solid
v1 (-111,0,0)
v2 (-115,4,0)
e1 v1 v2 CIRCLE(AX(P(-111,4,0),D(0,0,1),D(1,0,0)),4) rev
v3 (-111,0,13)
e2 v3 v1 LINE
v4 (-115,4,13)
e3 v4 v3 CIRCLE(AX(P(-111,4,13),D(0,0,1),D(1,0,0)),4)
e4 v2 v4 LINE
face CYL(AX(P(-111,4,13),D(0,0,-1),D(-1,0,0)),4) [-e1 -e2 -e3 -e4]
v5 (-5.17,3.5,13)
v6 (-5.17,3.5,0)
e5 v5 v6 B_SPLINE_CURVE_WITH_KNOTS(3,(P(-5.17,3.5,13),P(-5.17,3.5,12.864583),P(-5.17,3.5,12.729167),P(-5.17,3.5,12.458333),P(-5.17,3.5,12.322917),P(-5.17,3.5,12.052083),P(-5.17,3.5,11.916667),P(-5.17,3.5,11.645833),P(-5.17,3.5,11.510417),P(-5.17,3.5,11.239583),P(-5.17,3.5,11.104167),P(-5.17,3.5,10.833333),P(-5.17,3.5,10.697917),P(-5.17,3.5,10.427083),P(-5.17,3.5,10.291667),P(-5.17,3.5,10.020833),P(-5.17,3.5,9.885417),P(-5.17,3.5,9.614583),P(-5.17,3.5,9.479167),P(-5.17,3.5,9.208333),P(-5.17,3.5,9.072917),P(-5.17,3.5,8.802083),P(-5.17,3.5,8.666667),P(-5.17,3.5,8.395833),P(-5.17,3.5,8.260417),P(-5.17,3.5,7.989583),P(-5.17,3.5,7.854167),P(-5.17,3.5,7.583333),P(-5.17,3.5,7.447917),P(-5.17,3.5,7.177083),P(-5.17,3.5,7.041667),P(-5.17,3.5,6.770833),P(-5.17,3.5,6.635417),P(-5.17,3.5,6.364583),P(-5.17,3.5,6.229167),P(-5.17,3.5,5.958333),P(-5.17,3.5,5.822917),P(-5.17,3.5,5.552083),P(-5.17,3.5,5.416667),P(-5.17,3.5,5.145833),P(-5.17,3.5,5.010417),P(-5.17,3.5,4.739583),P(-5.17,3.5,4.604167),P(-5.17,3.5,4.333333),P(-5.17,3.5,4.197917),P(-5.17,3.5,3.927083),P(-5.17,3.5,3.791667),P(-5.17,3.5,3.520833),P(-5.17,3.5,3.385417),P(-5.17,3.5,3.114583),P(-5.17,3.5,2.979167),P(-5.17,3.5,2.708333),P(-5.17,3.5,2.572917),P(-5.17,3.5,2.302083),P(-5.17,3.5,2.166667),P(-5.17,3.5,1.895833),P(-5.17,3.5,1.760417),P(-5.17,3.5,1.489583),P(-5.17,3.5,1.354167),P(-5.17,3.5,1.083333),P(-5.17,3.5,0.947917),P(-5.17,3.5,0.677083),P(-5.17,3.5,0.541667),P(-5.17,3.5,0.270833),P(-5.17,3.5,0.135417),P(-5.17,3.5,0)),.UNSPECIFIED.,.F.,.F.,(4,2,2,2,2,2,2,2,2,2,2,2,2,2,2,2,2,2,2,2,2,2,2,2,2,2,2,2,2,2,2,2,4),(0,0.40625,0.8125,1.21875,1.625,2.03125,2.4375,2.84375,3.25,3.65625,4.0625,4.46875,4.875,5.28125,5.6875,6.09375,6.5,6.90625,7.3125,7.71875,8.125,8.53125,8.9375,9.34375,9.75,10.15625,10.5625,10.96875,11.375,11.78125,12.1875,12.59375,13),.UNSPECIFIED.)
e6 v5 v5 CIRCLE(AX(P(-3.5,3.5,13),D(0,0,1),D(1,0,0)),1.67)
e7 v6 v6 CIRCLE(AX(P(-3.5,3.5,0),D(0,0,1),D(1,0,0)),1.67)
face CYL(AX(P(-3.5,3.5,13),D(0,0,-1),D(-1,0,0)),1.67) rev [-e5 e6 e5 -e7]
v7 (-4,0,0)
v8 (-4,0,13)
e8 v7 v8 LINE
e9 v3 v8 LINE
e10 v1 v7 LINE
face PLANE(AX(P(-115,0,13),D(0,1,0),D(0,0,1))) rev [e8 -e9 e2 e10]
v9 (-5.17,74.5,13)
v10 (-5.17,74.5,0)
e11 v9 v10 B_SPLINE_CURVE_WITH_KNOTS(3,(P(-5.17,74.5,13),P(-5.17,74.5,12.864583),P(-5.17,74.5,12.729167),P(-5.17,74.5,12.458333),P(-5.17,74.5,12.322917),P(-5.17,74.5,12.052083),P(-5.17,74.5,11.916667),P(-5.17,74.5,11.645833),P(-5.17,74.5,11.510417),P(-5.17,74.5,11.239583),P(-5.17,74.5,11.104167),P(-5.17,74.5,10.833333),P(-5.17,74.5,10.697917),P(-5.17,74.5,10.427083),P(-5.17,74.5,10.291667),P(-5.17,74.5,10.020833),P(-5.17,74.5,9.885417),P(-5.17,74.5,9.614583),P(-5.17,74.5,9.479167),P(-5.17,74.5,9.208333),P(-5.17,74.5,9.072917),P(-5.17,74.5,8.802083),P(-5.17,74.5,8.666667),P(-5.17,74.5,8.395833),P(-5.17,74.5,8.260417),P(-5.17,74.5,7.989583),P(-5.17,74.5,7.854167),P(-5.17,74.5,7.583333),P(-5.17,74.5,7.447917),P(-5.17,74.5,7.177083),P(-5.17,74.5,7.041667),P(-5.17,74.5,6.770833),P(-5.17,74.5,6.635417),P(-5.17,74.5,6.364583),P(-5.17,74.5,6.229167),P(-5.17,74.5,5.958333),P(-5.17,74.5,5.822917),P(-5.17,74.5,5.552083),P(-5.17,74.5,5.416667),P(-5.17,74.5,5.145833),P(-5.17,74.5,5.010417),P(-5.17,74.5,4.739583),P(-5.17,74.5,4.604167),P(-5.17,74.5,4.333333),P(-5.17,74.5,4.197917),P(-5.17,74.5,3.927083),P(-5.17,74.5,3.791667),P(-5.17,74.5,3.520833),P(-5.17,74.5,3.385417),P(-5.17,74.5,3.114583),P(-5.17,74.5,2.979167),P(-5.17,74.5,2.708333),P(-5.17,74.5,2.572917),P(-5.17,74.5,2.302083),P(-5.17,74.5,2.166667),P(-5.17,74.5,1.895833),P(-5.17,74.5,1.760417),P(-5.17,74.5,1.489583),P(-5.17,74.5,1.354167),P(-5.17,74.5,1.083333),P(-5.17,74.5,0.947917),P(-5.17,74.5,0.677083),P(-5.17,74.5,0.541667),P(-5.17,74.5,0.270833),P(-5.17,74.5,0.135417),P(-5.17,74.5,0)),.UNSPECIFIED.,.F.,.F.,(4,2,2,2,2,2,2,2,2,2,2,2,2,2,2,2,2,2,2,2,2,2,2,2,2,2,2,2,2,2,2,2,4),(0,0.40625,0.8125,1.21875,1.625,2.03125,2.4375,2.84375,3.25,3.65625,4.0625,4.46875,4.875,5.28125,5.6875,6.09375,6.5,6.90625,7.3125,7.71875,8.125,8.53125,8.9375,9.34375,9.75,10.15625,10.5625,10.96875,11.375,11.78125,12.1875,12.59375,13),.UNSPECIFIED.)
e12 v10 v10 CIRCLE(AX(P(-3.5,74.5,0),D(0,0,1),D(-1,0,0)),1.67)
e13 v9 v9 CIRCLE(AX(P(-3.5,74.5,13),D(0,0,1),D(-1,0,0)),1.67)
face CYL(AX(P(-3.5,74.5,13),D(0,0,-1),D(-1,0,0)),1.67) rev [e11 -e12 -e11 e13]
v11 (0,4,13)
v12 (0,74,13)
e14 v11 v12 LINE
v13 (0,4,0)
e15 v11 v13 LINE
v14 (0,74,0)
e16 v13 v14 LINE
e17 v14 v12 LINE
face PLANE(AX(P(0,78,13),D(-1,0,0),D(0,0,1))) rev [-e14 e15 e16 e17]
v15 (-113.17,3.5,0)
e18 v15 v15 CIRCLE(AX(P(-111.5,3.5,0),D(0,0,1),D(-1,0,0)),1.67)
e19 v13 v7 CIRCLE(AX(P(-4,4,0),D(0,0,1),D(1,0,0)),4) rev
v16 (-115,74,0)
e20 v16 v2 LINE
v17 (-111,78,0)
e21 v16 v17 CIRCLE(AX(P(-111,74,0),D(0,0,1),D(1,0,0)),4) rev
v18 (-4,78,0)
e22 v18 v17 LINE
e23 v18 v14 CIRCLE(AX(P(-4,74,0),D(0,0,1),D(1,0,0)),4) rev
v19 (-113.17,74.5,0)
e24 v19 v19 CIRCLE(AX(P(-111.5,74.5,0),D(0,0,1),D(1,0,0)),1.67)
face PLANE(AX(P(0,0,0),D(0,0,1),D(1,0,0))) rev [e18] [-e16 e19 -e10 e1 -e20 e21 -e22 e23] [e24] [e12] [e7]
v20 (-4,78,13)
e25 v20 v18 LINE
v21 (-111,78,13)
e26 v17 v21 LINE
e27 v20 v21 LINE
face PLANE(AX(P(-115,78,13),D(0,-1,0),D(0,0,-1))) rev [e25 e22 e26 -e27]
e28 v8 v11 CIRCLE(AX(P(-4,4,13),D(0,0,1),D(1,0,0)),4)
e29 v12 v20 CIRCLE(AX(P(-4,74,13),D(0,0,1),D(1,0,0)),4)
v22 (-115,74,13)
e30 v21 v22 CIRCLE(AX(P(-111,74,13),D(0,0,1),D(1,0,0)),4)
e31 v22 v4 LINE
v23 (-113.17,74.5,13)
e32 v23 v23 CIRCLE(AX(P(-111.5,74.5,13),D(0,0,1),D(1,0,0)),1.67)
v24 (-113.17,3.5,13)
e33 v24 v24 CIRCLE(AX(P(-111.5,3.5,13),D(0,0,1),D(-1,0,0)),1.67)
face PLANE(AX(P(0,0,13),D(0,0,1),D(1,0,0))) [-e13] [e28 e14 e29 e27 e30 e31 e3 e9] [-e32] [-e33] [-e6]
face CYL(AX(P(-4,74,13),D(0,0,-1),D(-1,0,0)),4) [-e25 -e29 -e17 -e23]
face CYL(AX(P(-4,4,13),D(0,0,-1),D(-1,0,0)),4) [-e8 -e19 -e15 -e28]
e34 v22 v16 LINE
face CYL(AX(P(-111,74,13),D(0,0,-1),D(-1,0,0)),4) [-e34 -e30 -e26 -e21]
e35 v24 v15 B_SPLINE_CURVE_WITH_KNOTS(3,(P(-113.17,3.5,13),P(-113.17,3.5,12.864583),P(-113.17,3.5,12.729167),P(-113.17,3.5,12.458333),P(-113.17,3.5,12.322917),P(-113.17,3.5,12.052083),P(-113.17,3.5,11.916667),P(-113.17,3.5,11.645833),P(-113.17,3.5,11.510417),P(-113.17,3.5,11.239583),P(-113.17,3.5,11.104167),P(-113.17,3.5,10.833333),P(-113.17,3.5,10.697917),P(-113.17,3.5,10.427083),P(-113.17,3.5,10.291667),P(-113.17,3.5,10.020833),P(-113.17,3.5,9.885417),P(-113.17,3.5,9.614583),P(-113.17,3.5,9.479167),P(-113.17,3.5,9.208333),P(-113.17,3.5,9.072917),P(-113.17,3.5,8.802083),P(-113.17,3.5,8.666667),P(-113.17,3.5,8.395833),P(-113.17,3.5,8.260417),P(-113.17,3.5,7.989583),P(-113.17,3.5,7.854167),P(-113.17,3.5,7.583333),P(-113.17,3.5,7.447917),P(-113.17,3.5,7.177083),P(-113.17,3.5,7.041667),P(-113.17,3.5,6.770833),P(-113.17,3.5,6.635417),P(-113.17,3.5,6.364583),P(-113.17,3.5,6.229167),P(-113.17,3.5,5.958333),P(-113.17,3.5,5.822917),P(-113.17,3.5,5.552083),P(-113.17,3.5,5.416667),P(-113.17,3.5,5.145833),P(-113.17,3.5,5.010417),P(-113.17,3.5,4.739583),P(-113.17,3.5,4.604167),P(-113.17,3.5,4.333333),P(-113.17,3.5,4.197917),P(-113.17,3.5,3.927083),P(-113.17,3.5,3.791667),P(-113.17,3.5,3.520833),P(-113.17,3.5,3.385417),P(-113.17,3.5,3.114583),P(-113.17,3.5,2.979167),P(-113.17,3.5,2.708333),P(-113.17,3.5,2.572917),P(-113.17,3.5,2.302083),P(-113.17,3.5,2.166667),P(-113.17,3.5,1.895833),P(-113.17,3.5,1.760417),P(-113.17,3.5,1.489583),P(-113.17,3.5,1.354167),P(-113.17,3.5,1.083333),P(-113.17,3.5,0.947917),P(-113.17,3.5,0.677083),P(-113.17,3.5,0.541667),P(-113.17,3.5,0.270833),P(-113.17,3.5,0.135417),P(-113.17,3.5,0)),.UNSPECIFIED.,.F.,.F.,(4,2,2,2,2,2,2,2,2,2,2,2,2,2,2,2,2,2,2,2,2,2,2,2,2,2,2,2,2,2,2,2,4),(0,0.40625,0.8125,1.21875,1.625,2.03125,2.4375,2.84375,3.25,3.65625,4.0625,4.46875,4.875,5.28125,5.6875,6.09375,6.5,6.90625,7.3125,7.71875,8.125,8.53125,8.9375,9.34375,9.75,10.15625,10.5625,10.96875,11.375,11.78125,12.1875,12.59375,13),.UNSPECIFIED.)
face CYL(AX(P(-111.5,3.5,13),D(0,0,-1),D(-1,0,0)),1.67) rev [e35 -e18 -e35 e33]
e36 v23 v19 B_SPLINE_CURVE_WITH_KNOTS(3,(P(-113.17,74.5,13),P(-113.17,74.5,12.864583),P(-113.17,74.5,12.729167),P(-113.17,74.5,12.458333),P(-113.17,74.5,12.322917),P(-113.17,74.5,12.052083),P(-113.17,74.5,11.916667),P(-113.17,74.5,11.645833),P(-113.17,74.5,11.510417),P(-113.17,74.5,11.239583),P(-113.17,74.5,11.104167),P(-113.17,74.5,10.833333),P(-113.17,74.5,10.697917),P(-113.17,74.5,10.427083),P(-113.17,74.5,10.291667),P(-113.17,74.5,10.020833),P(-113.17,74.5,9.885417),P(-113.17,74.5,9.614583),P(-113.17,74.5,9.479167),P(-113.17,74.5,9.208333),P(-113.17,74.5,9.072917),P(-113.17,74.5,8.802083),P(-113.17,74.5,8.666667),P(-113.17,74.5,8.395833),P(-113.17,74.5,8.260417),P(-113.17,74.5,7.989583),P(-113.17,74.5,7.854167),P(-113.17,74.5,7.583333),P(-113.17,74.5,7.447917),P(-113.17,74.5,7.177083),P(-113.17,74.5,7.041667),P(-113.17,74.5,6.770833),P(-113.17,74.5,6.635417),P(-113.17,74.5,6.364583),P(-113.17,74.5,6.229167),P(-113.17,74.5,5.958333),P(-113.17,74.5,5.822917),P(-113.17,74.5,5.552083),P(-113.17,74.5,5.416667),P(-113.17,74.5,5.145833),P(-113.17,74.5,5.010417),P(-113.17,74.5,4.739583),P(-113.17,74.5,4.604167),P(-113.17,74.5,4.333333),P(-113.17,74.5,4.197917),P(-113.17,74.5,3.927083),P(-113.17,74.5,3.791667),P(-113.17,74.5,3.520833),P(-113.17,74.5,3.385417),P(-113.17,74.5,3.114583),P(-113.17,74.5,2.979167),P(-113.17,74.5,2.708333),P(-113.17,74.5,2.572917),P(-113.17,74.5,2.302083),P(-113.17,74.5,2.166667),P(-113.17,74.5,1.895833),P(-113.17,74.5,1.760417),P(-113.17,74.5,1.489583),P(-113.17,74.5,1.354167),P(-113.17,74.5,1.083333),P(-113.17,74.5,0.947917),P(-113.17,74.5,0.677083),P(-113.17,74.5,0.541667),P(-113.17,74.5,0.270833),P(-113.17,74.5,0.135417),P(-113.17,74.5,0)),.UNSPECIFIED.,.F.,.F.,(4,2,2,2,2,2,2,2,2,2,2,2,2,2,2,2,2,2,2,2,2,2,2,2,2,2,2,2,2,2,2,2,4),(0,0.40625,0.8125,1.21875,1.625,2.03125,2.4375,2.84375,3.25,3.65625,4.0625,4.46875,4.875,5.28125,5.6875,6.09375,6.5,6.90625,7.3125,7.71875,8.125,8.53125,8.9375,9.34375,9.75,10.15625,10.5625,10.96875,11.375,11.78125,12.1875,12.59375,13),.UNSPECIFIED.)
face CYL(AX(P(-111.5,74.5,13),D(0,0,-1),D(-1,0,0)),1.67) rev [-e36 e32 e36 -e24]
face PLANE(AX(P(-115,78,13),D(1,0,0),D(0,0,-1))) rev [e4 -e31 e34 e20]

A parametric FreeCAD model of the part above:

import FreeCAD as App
import Part
import Sketcher
from FreeCAD import Vector


def edges_at(feature, points):
    """Names of the edges that pass closest to the given points."""
    edges = feature.Shape.Edges
    near = lambda p: min(range(len(edges)), key=lambda i: edges[i].distToShape(Part.Vertex(*p))[0])
    return sorted({f"Edge{near(p) + 1}" for p in points})

doc = App.newDocument("Part")
body = doc.addObject("PartDesign::Body", "Body")

# Sketch on XY plane
sketch1 = doc.addObject("Sketcher::SketchObject", "Sketch")
body.addObject(sketch1)
sketch1.AttachmentSupport = (doc.XY_Plane, [""])
sketch1.MapMode = "FlatFace"
sketch1.addGeometry(Part.LineSegment(Vector(-115, 78, 0), Vector(-115, 0, 0)), False)
sketch1.addGeometry(Part.LineSegment(Vector(-115, 0, 0), Vector(0, 0, 0)), False)
sketch1.addGeometry(Part.LineSegment(Vector(0, 0, 0), Vector(0, 78, 0)), False)
sketch1.addGeometry(Part.LineSegment(Vector(0, 78, 0), Vector(-115, 78, 0)), False)
sketch1.addGeometry(Part.Circle(Vector(-111.5, 3.5, 0), Vector(0, 0, 1), 1.7), False)
sketch1.addGeometry(Part.Circle(Vector(-3.5, 3.5, 0), Vector(0, 0, 1), 1.7), False)
sketch1.addGeometry(Part.Circle(Vector(-111.5, 74.5, 0), Vector(0, 0, 1), 1.7), False)
sketch1.addGeometry(Part.Circle(Vector(-3.5, 74.5, 0), Vector(0, 0, 1), 1.7), False)
sketch1.addConstraint(Sketcher.Constraint("Coincident", 0, 2, 1, 1))
sketch1.addConstraint(Sketcher.Constraint("Coincident", 1, 2, 2, 1))
sketch1.addConstraint(Sketcher.Constraint("Coincident", 2, 2, 3, 1))
sketch1.addConstraint(Sketcher.Constraint("Coincident", 3, 2, 0, 1))
sketch1.addConstraint(Sketcher.Constraint("Vertical", 0))
sketch1.addConstraint(Sketcher.Constraint("Horizontal", 1))
sketch1.addConstraint(Sketcher.Constraint("Vertical", 2))
sketch1.addConstraint(Sketcher.Constraint("Horizontal", 3))
sketch1.addConstraint(Sketcher.Constraint("Coincident", 1, 2, -1, 1))
sketch1.addConstraint(Sketcher.Constraint("Equal", 4, 5))
sketch1.addConstraint(Sketcher.Constraint("Equal", 5, 6))
sketch1.addConstraint(Sketcher.Constraint("Equal", 6, 7))
sketch1.addConstraint(Sketcher.Constraint("Horizontal", 4, 3, 5, 3))
sketch1.addConstraint(Sketcher.Constraint("Horizontal", 6, 3, 7, 3))
sketch1.addConstraint(Sketcher.Constraint("Vertical", 4, 3, 6, 3))
sketch1.addConstraint(Sketcher.Constraint("Vertical", 5, 3, 7, 3))
sketch1.addConstraint(Sketcher.Constraint("Diameter", 4, 3.34))
sketch1.addConstraint(Sketcher.Constraint("DistanceX", 1, 1, 1, 2, 115.0))
sketch1.addConstraint(Sketcher.Constraint("DistanceY", 0, 2, 0, 1, 78.0))
sketch1.addConstraint(Sketcher.Constraint("DistanceX", 4, 3, 5, 3, 108.0))
sketch1.addConstraint(Sketcher.Constraint("DistanceY", 4, 3, 6, 3, 71.0))
sketch1.addConstraint(Sketcher.Constraint("DistanceX", 4, 3, -1, 1, 111.5))
sketch1.addConstraint(Sketcher.Constraint("DistanceY", -1, 1, 4, 3, 3.5))
pad1 = doc.addObject("PartDesign::Pad", "Pad")
body.addObject(pad1)
pad1.Profile = sketch1
pad1.Length = 13
doc.recompute()

fillet = doc.addObject("PartDesign::Fillet", "Fillet")
body.addObject(fillet)
fillet.Base = (pad1, edges_at(pad1, [
    (-115, 78, 6.5),
    (0, 78, 6.5),
    (0, 0, 6.5),
    (-115, 0, 6.5),
]))
fillet.Radius = 4

doc.recompute()
